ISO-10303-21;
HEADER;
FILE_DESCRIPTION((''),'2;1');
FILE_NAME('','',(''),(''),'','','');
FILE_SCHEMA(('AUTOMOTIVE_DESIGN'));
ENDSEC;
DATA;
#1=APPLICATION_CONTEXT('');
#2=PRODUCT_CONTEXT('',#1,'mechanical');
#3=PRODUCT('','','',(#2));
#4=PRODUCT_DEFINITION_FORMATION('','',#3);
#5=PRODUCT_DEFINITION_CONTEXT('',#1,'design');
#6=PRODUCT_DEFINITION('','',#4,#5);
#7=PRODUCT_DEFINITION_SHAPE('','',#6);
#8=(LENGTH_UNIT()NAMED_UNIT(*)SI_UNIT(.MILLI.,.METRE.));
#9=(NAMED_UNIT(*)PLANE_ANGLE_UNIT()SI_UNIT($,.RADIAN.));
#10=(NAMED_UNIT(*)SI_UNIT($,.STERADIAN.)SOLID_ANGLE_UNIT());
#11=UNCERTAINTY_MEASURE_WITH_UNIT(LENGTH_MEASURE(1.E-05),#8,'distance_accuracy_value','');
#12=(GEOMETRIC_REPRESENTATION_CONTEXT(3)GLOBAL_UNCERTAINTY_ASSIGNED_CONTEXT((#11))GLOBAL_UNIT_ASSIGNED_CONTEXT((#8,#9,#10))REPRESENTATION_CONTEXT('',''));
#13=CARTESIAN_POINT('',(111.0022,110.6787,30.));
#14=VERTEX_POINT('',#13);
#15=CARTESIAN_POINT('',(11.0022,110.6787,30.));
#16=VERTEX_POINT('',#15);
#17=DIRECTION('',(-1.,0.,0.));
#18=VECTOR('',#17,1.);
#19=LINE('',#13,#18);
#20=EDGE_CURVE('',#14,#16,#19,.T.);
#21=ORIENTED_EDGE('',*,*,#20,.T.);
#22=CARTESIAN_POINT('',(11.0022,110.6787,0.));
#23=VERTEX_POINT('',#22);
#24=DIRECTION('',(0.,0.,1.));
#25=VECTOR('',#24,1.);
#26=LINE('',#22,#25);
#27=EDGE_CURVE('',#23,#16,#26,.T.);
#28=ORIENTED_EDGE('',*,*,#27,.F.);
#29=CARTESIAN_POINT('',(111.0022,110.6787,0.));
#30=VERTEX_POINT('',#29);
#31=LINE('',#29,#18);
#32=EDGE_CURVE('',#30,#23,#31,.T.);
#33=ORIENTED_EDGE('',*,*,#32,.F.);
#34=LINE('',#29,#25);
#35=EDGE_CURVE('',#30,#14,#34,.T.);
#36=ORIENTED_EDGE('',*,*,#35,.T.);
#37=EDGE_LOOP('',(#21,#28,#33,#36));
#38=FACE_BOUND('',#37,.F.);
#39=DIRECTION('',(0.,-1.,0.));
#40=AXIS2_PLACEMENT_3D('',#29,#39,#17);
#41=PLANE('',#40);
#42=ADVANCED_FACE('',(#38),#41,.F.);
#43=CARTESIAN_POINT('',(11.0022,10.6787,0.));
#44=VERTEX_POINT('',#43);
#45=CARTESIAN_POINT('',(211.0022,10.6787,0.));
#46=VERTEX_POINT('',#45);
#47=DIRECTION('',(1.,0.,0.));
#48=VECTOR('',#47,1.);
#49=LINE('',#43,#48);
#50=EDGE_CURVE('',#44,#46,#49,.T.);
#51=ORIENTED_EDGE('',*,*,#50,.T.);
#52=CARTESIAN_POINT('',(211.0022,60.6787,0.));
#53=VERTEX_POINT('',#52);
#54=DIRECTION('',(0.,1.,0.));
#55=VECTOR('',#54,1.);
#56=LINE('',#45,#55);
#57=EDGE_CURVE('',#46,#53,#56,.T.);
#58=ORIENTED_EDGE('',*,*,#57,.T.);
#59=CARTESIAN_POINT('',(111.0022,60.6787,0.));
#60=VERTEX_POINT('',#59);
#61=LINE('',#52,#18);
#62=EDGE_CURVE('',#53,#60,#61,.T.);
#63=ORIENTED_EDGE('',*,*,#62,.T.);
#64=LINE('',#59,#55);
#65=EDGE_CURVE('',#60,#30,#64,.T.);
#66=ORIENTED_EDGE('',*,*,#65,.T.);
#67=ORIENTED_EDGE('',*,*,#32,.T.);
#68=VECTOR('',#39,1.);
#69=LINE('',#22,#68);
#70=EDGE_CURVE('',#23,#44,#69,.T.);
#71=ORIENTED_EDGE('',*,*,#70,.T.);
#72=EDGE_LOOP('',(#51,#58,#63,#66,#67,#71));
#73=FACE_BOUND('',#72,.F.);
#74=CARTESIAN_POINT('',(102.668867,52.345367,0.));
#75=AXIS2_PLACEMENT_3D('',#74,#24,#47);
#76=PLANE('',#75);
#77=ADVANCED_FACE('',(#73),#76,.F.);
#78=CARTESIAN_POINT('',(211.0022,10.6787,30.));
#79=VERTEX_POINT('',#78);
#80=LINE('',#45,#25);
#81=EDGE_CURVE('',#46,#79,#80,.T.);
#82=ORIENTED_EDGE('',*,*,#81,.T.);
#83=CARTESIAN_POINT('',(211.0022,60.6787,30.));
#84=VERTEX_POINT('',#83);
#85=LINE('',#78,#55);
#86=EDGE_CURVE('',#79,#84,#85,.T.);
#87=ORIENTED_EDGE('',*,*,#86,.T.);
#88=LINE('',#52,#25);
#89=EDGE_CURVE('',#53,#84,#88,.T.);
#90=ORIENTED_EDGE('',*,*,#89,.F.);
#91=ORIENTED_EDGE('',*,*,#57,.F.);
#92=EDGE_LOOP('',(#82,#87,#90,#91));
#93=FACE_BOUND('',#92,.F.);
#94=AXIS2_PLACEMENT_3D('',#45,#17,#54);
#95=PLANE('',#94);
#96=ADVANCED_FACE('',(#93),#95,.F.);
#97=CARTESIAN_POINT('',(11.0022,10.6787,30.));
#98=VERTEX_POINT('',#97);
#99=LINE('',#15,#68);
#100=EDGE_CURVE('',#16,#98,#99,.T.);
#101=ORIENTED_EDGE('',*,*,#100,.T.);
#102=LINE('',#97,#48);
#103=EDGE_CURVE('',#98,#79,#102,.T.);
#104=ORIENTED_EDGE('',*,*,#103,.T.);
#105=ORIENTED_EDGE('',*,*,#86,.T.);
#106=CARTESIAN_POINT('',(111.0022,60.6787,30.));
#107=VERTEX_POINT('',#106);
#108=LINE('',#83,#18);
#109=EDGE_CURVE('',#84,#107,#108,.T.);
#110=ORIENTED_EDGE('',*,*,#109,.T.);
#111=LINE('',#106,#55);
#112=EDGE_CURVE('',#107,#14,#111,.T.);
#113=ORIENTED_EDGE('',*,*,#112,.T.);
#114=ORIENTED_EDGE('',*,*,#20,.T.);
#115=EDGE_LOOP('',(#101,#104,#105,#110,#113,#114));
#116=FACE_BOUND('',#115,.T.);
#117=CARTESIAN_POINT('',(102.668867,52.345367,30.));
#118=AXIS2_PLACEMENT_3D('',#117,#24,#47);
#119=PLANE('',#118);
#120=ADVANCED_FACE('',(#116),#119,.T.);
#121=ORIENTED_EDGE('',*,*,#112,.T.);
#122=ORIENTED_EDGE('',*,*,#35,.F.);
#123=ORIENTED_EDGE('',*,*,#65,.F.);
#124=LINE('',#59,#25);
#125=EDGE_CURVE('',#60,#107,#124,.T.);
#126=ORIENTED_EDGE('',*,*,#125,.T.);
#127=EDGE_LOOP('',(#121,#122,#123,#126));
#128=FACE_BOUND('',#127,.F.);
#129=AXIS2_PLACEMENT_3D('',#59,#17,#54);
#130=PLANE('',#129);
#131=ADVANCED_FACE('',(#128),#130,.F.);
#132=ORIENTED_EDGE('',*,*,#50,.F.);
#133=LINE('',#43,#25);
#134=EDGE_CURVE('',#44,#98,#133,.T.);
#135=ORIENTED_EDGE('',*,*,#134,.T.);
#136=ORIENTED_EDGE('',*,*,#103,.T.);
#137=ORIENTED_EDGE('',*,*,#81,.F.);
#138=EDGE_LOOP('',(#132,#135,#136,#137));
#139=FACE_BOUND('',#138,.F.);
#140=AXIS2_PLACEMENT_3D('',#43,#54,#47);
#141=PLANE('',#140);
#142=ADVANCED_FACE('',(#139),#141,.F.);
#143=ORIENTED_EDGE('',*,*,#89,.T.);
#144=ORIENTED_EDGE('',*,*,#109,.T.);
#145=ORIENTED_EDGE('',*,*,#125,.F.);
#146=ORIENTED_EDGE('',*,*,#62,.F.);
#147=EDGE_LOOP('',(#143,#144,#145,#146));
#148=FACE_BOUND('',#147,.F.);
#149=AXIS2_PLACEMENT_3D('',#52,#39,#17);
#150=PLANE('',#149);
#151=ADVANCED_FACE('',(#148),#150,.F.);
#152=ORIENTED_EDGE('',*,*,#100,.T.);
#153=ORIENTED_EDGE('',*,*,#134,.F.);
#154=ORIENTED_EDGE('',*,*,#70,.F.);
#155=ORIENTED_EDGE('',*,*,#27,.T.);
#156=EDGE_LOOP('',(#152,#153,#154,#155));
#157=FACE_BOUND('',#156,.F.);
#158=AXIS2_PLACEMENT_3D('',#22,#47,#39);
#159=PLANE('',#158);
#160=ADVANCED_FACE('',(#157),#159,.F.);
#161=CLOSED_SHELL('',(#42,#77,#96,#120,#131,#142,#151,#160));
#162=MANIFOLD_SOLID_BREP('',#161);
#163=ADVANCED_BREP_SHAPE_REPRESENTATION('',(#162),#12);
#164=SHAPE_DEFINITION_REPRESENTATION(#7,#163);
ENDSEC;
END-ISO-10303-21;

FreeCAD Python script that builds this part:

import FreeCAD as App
import Part
import Sketcher
from FreeCAD import Vector
Q = App.Units.Quantity


def add_polygon(sketch, points):
    """Adds a closed chain of lines whose ends are joined by coincident constraints."""
    first, n = sketch.GeometryCount, len(points)
    for a, b in zip(points, points[1:] + points[:1]):
        sketch.addGeometry(Part.LineSegment(App.Vector(*a, 0), App.Vector(*b, 0)), False)
    for i in range(n):
        sketch.addConstraint(Sketcher.Constraint("Coincident", first + i, 2, first + (i + 1) % n, 1))

doc = App.newDocument("Part")
body = doc.addObject("PartDesign::Body", "Body")

# Sketch on XY plane
sketch1 = body.newObject("Sketcher::SketchObject", "Sketch")
sketch1.AttachmentSupport = (doc.getObject("XY_Plane"), [""])
sketch1.MapMode = "FlatFace"
add_polygon(sketch1, [(11, 111), (11, 11), (211, 11), (211, 61), (111, 61), (111, 111)])  # lines 0-5
sketch1.addConstraint([
    Sketcher.Constraint("Vertical", 0),
    Sketcher.Constraint("Horizontal", 1),
    Sketcher.Constraint("Vertical", 2),
    Sketcher.Constraint("Horizontal", 3),
    Sketcher.Constraint("Vertical", 4),
    Sketcher.Constraint("Horizontal", 5),
    Sketcher.Constraint("Equal", 3, 5),
    Sketcher.Constraint("Equal", 5, 0),
    Sketcher.Constraint("Equal", 2, 4),
    Sketcher.Constraint("DistanceX", 1, 1, 1, 2, Q("200 mm")),
    Sketcher.Constraint("DistanceX", -1, 1, 0, 2, Q("11.0022 mm")),
    Sketcher.Constraint("DistanceY", -1, 1, 0, 2, Q("10.6787 mm")),
])
pad1 = body.newObject("PartDesign::Pad", "Pad")
pad1.Profile = sketch1
pad1.Length = 30

doc.recompute()
